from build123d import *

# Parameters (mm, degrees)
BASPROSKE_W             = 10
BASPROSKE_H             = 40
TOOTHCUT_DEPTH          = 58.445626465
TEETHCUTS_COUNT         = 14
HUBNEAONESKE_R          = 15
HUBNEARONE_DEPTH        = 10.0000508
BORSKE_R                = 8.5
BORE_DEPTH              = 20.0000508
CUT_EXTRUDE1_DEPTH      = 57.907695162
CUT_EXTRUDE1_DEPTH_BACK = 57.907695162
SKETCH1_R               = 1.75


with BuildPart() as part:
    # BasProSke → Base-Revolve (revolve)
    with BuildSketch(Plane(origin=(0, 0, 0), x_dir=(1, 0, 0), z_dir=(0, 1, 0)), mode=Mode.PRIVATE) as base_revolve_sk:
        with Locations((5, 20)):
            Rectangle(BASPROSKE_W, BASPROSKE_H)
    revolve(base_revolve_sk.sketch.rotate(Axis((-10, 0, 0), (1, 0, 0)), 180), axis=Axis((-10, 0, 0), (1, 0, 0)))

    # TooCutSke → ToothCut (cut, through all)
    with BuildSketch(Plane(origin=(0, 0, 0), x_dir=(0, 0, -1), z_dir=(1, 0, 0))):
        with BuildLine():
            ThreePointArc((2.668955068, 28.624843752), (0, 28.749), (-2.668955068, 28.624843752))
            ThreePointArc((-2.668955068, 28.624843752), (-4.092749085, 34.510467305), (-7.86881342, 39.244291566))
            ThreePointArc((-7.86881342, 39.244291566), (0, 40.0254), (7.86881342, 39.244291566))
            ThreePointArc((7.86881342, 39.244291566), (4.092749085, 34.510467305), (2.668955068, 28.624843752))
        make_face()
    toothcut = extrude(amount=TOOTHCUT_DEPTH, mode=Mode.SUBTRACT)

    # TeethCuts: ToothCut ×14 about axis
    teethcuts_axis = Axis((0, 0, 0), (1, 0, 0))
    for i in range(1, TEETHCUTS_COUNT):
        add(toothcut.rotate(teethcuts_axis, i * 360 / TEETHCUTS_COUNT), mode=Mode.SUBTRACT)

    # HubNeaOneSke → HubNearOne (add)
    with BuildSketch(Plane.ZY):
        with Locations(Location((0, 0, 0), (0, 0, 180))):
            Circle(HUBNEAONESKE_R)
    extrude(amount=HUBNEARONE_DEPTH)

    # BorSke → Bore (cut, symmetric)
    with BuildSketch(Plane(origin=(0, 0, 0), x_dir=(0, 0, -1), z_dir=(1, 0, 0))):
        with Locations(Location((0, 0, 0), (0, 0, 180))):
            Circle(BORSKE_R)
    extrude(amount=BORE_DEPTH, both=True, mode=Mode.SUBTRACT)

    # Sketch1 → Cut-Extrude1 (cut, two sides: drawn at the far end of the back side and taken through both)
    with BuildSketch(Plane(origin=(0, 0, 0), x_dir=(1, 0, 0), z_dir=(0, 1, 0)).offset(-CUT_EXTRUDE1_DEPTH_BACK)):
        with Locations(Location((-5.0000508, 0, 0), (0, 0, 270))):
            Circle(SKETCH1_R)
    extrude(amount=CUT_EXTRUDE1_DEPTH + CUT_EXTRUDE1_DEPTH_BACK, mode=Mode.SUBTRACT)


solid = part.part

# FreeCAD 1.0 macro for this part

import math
import FreeCAD as App
import Part
import Sketcher


def add_polygon(sketch, points):
    """Adds a closed chain of lines whose ends are joined by coincident constraints."""
    first, n = sketch.GeometryCount, len(points)
    for a, b in zip(points, points[1:] + points[:1]):
        sketch.addGeometry(Part.LineSegment(App.Vector(*a, 0), App.Vector(*b, 0)), False)
    for i in range(n):
        sketch.addConstraint(Sketcher.Constraint("Coincident", first + i, 2, first + (i + 1) % n, 1))

doc = App.newDocument("Part")
body = doc.addObject("PartDesign::Body", "Body")

# Sketch on XZ plane
sketch1 = body.newObject("Sketcher::SketchObject", "Sketch")
sketch1.AttachmentSupport = (doc.getObject("XZ_Plane"), [""])
sketch1.MapMode = "FlatFace"
add_polygon(sketch1, [(0, -40), (0, 0), (10, 0), (10, -40)])  # lines 0-3
sketch1.addConstraint([
    Sketcher.Constraint("Vertical", 0),
    Sketcher.Constraint("Horizontal", 1),
    Sketcher.Constraint("Vertical", 2),
    Sketcher.Constraint("Horizontal", 3),
    Sketcher.Constraint("Coincident", 0, 2, -1, 1),
    Sketcher.Constraint("DistanceX", 1, 1, 1, 2, 10.0),
    Sketcher.Constraint("DistanceY", 0, 1, 0, 2, 40.0),
])
revolution = body.newObject("PartDesign::Revolution", "Revolution")
revolution.Profile = sketch1
revolution.ReferenceAxis = (sketch1, ["H_Axis"])
revolution.Angle = 360

# Sketch on YZ plane
sketch2 = body.newObject("Sketcher::SketchObject", "Sketch001")
sketch2.AttachmentSupport = (doc.getObject("YZ_Plane"), [""])
sketch2.MapMode = "FlatFace"
sketch2.addGeometry([
    Part.ArcOfCircle(Part.Circle(App.Vector(0, 0, 0), App.Vector(0, 0, 1), 29), math.radians(-5.33), math.radians(5.33)),
    Part.ArcOfCircle(Part.Circle(App.Vector(28, -17, 0), App.Vector(0, 0, 1), 14), math.radians(39), math.radians(89)),
    Part.ArcOfCircle(Part.Circle(App.Vector(0, 0, 0), App.Vector(0, 0, 1), 40), math.radians(-11), math.radians(11)),
    Part.ArcOfCircle(Part.Circle(App.Vector(28, 17, 0), App.Vector(0, 0, 1), 14), math.radians(-89), math.radians(-39)),
], False)
sketch2.addConstraint([
    Sketcher.Constraint("Coincident", 0, 1, 1, 2),
    Sketcher.Constraint("Coincident", 1, 1, 2, 1),
    Sketcher.Constraint("Coincident", 2, 2, 3, 2),
    Sketcher.Constraint("Coincident", 3, 1, 0, 2),
    Sketcher.Constraint("Coincident", 0, 3, -1, 1),
    Sketcher.Constraint("Coincident", 2, 3, -1, 1),
    Sketcher.Constraint("Equal", 1, 3),
    Sketcher.Constraint("Symmetric", 1, 3, 3, 3, -1),
    Sketcher.Constraint("Radius", 1, 14.0),
    Sketcher.Constraint("Radius", 0, 28.749),
    Sketcher.Constraint("Radius", 2, 40.0254),
    Sketcher.Constraint("DistanceX", -1, 1, 1, 3, 28.353759),
    Sketcher.Constraint("DistanceY", 1, 3, -1, 1, 16.66633),
])
pocket1 = body.newObject("PartDesign::Pocket", "Pocket")
pocket1.Profile = sketch2
pocket1.Type = "ThroughAll"
pocket1.Reversed = True
doc.recompute()

polarpattern = body.newObject("PartDesign::PolarPattern", "PolarPattern")
polarpattern.Originals = [pocket1]
polarpattern.Axis = (doc.getObject("X_Axis"), [""])
polarpattern.Angle = 360
polarpattern.Occurrences = 14
body.Tip = polarpattern

# Sketch on YZ plane
sketch3 = body.newObject("Sketcher::SketchObject", "Sketch002")
sketch3.AttachmentSupport = (doc.getObject("YZ_Plane"), [""])
sketch3.MapMode = "FlatFace"
sketch3.addGeometry(Part.Circle(App.Vector(0, 0, 0), App.Vector(0, 0, 1), 15), False)
sketch3.addConstraint([
    Sketcher.Constraint("Coincident", 0, 3, -1, 1),
    Sketcher.Constraint("Diameter", 0, 30.0),
])
pad1 = body.newObject("PartDesign::Pad", "Pad")
pad1.Profile = sketch3
pad1.Length = 10.000051
pad1.Reversed = True

# Sketch on YZ plane
sketch4 = body.newObject("Sketcher::SketchObject", "Sketch003")
sketch4.AttachmentSupport = (doc.getObject("YZ_Plane"), [""])
sketch4.MapMode = "FlatFace"
sketch4.addGeometry(Part.Circle(App.Vector(0, 0, 0), App.Vector(0, 0, 1), 8), False)
sketch4.addConstraint([
    Sketcher.Constraint("Coincident", 0, 3, -1, 1),
    Sketcher.Constraint("Diameter", 0, 17.0),
])
pocket2 = body.newObject("PartDesign::Pocket", "Pocket001")
pocket2.Profile = sketch4
pocket2.Length = 40.000102
pocket2.Midplane = True

# Sketch on XZ plane
sketch5 = body.newObject("Sketcher::SketchObject", "Sketch004")
sketch5.AttachmentSupport = (doc.getObject("XZ_Plane"), [""])
sketch5.MapMode = "FlatFace"
sketch5.addGeometry(Part.Circle(App.Vector(-5, 0, 0), App.Vector(0, 0, 1), 1.8), False)
sketch5.addConstraint([
    Sketcher.Constraint("PointOnObject", 0, 3, -1),
    Sketcher.Constraint("Diameter", 0, 3.5),
    Sketcher.Constraint("DistanceX", 0, 3, -1, 1, 5.000051),
])
pocket3 = body.newObject("PartDesign::Pocket", "Pocket002")
pocket3.Profile = sketch5
pocket3.Type = "ThroughAll"
pocket3.Midplane = True

doc.recompute()
